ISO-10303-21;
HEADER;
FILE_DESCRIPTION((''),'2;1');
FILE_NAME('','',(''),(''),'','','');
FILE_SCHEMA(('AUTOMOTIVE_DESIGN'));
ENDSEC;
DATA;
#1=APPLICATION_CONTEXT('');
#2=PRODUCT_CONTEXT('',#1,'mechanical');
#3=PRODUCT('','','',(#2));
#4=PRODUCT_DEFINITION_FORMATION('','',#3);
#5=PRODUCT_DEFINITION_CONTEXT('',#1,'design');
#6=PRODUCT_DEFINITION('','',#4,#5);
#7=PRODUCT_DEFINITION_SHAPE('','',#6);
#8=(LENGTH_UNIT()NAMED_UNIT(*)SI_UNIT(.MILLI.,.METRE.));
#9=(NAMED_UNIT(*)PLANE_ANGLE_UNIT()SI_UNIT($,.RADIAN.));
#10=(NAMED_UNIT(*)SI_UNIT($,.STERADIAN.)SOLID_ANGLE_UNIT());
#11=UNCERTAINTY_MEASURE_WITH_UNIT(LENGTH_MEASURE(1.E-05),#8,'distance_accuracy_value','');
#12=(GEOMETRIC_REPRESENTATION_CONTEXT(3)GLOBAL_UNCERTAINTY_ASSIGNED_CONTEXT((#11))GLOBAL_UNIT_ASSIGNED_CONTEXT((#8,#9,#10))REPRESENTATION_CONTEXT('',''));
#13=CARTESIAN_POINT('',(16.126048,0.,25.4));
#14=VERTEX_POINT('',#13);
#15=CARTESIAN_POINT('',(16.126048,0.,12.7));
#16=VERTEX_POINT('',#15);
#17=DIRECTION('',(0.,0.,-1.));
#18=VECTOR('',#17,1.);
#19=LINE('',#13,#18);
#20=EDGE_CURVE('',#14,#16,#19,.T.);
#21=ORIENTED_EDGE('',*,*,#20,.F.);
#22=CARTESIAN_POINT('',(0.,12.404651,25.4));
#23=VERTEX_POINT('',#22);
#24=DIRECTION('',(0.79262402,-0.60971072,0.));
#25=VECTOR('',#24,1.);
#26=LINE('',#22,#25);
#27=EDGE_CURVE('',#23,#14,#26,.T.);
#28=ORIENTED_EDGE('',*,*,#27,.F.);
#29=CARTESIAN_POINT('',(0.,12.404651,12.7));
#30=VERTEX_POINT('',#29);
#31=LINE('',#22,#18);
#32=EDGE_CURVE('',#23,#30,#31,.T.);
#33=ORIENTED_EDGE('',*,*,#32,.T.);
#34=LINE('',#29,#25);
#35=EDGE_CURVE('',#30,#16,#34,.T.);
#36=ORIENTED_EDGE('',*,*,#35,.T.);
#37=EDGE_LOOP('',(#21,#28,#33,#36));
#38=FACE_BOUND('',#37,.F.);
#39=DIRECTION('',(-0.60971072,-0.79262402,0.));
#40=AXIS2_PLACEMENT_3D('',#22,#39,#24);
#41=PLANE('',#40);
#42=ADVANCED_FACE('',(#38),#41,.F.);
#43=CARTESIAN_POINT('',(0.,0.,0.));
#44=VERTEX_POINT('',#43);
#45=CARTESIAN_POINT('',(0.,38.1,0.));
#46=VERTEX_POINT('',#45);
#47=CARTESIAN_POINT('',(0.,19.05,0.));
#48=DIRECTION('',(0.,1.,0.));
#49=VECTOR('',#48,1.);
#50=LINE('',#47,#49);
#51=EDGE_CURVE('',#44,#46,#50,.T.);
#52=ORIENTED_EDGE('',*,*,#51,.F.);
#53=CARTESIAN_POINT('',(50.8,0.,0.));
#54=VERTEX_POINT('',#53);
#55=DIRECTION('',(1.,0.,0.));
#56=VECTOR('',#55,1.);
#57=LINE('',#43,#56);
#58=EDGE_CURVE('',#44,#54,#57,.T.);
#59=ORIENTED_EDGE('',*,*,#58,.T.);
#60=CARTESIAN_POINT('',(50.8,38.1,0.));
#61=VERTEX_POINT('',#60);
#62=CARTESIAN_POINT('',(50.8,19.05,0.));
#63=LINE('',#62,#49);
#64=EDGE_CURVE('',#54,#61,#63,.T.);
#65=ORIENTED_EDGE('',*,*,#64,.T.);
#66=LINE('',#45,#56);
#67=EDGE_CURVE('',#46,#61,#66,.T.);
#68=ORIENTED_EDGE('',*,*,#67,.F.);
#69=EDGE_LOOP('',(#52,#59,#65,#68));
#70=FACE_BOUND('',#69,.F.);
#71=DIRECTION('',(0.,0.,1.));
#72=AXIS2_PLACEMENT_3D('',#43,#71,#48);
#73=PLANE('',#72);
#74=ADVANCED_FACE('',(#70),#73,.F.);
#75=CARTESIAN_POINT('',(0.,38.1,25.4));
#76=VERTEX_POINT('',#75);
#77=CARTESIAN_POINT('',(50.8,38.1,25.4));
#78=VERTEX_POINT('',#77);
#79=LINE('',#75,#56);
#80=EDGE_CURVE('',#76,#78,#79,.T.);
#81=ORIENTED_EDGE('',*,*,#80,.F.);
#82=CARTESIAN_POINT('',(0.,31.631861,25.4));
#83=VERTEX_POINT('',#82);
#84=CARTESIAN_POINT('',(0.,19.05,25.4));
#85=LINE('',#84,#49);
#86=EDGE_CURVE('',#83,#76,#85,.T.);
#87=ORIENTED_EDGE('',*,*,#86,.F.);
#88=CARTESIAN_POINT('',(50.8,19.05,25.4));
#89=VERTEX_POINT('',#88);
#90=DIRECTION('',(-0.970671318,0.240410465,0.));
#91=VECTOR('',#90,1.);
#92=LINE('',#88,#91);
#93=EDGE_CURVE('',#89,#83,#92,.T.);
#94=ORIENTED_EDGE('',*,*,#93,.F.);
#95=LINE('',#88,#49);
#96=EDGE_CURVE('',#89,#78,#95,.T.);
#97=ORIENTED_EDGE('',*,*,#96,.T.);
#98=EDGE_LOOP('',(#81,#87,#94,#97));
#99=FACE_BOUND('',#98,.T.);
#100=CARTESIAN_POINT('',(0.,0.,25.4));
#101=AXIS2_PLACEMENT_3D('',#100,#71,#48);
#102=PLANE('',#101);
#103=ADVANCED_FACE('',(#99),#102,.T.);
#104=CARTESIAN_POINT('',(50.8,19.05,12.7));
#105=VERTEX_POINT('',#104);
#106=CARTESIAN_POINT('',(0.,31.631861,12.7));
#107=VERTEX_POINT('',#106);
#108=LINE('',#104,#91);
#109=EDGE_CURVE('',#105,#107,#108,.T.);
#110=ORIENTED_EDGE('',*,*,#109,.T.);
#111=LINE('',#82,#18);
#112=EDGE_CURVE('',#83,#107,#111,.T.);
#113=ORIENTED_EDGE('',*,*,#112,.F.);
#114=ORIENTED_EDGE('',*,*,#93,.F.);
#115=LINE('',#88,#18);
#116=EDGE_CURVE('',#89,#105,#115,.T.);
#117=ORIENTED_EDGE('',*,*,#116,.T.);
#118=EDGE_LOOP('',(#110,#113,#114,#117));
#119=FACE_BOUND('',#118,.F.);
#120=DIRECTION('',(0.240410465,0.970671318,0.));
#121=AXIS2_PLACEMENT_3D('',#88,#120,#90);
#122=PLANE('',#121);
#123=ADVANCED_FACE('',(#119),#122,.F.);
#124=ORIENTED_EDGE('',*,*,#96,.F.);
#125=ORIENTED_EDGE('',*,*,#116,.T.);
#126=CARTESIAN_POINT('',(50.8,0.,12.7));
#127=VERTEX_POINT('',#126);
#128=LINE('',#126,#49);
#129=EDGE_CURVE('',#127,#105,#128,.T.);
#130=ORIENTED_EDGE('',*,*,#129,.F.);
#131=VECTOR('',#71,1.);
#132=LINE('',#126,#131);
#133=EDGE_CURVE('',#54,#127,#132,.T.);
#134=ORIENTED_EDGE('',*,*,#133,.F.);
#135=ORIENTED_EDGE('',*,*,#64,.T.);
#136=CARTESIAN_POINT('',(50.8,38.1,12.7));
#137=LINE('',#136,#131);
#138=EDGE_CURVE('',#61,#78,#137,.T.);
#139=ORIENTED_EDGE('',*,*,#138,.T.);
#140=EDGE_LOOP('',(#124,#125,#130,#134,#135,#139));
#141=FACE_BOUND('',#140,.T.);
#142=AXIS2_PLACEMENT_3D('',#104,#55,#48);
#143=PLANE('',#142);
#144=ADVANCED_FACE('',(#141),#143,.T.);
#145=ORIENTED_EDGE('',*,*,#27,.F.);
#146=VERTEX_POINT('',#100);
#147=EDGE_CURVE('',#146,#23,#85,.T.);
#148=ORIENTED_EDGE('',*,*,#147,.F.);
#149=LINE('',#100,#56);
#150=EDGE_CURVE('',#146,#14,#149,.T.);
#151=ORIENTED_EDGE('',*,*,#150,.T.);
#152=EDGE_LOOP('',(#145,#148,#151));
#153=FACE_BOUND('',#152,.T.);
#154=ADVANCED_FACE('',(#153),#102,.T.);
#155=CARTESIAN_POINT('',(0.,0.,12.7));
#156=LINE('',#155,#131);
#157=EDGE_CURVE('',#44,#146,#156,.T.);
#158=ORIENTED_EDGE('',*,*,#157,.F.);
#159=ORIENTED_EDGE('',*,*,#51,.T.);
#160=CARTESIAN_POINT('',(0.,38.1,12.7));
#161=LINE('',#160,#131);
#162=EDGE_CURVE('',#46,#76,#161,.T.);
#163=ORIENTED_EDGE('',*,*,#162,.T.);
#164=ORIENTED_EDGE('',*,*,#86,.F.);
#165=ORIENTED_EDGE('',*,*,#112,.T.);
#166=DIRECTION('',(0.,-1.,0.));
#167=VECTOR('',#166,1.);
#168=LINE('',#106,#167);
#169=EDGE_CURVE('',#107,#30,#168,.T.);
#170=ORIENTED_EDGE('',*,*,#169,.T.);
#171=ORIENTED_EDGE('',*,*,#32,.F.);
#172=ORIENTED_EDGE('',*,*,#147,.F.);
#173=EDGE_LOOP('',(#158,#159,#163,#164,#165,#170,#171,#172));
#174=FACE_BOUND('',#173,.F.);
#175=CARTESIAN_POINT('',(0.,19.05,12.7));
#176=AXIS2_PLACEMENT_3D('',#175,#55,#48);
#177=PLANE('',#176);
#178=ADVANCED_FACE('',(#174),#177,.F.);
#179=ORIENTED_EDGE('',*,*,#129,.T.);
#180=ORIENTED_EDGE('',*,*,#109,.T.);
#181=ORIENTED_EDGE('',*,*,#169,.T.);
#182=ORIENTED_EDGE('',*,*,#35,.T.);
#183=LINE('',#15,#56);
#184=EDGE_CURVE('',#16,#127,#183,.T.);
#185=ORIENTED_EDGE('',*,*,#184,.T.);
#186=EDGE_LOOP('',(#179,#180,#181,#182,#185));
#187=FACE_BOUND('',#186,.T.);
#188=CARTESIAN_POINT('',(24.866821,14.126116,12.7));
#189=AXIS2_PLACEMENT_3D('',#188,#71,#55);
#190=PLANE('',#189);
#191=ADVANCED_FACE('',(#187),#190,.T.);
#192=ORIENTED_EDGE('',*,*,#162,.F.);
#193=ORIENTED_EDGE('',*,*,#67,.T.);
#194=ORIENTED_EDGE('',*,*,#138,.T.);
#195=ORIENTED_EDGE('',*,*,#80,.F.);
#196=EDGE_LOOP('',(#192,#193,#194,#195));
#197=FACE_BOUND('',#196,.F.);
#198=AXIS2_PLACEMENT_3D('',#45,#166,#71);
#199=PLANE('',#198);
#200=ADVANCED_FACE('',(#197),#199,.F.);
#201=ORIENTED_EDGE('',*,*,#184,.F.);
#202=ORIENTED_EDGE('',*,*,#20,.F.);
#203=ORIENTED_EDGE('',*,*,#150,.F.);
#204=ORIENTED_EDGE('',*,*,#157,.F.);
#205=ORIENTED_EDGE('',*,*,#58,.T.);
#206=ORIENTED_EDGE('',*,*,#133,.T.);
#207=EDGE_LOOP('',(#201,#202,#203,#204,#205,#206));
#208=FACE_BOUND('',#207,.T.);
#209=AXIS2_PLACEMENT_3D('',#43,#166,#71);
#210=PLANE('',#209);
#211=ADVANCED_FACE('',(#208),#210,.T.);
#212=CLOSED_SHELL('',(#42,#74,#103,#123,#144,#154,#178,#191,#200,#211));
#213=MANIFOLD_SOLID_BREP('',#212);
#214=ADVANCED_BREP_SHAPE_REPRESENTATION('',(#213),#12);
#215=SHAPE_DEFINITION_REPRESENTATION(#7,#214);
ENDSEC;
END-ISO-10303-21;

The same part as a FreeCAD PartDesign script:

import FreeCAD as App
import Part
import Sketcher
from FreeCAD import Vector
Q = App.Units.Quantity

doc = App.newDocument("Part")
body = doc.addObject("PartDesign::Body", "Body")

# Sketch on YZ plane
sketch1 = body.newObject("Sketcher::SketchObject", "Sketch")
sketch1.AttachmentSupport = (doc.getObject("YZ_Plane"), [""])
sketch1.MapMode = "FlatFace"
sketch1.addGeometry([
    Part.LineSegment(Vector(0, 25, 0), Vector(0, 0, 0)),
    Part.LineSegment(Vector(0, 0, 0), Vector(38, 0, 0)),
    Part.LineSegment(Vector(38, 0, 0), Vector(38, 25, 0)),
    Part.LineSegment(Vector(38, 25, 0), Vector(0, 25, 0)),
], False)
sketch1.addConstraint([
    Sketcher.Constraint("Coincident", 0, 2, 1, 1),
    Sketcher.Constraint("Coincident", 1, 2, 2, 1),
    Sketcher.Constraint("Coincident", 2, 2, 3, 1),
    Sketcher.Constraint("Coincident", 3, 2, 0, 1),
    Sketcher.Constraint("Vertical", 0),
    Sketcher.Constraint("Horizontal", 1),
    Sketcher.Constraint("Vertical", 2),
    Sketcher.Constraint("Horizontal", 3),
    Sketcher.Constraint("Coincident", 0, 2, -1, 1),
    Sketcher.Constraint("DistanceY", 0, 2, 0, 1, Q("1 in")),
    Sketcher.Constraint("DistanceX", 1, 1, 1, 2, Q("1.5 in")),
])
pad1 = body.newObject("PartDesign::Pad", "Pad")
pad1.Profile = sketch1
pad1.Length = Q("2 in")

# Sketch on XY plane
sketch2 = body.newObject("Sketcher::SketchObject", "Sketch001")
sketch2.AttachmentSupport = (doc.getObject("XY_Plane"), [""])
sketch2.MapMode = "FlatFace"
sketch2.AttachmentOffset = App.Placement(Vector(0, 0, 1 * 25.4), App.Rotation())
sketch2.addGeometry([
    Part.LineSegment(Vector(0, 12, 0), Vector(16, 0, 0)),  # 0
    Part.LineSegment(Vector(16, 0, 0), Vector(51, 0, 0)),  # 1
    Part.LineSegment(Vector(51, 0, 0), Vector(51, 19, 0)),  # 2
    Part.LineSegment(Vector(51, 19, 0), Vector(0, 32, 0)),  # 3
    Part.LineSegment(Vector(0, 32, 0), Vector(0, 12, 0)),  # 4
], False)
sketch2.addConstraint([
    Sketcher.Constraint("Coincident", 0, 2, 1, 1),
    Sketcher.Constraint("Coincident", 1, 2, 2, 1),
    Sketcher.Constraint("Coincident", 2, 2, 3, 1),
    Sketcher.Constraint("Coincident", 3, 2, 4, 1),
    Sketcher.Constraint("Coincident", 4, 2, 0, 1),
    Sketcher.Constraint("Horizontal", 1),
    Sketcher.Constraint("Vertical", 2),
    Sketcher.Constraint("Vertical", 4),
    Sketcher.Constraint("PointOnObject", 0, 2, -1),
    Sketcher.Constraint("PointOnObject", 3, 2, -2),
    Sketcher.Constraint("DistanceX", -1, 1, 1, 2, Q("2 in")),
    Sketcher.Constraint("DistanceY", 2, 1, 2, 2, Q("0.75 in")),
    Sketcher.Constraint("DistanceY", 4, 2, 4, 1, Q("19.22721 mm")),
    Sketcher.Constraint("Distance", 0, Q("20.345142 mm")),
    Sketcher.Constraint("DistanceX", 1, 1, 1, 2, Q("34.673952 mm")),
])
pocket1 = body.newObject("PartDesign::Pocket", "Pocket")
pocket1.Profile = sketch2
pocket1.Length = Q("0.5 in")

doc.recompute()
